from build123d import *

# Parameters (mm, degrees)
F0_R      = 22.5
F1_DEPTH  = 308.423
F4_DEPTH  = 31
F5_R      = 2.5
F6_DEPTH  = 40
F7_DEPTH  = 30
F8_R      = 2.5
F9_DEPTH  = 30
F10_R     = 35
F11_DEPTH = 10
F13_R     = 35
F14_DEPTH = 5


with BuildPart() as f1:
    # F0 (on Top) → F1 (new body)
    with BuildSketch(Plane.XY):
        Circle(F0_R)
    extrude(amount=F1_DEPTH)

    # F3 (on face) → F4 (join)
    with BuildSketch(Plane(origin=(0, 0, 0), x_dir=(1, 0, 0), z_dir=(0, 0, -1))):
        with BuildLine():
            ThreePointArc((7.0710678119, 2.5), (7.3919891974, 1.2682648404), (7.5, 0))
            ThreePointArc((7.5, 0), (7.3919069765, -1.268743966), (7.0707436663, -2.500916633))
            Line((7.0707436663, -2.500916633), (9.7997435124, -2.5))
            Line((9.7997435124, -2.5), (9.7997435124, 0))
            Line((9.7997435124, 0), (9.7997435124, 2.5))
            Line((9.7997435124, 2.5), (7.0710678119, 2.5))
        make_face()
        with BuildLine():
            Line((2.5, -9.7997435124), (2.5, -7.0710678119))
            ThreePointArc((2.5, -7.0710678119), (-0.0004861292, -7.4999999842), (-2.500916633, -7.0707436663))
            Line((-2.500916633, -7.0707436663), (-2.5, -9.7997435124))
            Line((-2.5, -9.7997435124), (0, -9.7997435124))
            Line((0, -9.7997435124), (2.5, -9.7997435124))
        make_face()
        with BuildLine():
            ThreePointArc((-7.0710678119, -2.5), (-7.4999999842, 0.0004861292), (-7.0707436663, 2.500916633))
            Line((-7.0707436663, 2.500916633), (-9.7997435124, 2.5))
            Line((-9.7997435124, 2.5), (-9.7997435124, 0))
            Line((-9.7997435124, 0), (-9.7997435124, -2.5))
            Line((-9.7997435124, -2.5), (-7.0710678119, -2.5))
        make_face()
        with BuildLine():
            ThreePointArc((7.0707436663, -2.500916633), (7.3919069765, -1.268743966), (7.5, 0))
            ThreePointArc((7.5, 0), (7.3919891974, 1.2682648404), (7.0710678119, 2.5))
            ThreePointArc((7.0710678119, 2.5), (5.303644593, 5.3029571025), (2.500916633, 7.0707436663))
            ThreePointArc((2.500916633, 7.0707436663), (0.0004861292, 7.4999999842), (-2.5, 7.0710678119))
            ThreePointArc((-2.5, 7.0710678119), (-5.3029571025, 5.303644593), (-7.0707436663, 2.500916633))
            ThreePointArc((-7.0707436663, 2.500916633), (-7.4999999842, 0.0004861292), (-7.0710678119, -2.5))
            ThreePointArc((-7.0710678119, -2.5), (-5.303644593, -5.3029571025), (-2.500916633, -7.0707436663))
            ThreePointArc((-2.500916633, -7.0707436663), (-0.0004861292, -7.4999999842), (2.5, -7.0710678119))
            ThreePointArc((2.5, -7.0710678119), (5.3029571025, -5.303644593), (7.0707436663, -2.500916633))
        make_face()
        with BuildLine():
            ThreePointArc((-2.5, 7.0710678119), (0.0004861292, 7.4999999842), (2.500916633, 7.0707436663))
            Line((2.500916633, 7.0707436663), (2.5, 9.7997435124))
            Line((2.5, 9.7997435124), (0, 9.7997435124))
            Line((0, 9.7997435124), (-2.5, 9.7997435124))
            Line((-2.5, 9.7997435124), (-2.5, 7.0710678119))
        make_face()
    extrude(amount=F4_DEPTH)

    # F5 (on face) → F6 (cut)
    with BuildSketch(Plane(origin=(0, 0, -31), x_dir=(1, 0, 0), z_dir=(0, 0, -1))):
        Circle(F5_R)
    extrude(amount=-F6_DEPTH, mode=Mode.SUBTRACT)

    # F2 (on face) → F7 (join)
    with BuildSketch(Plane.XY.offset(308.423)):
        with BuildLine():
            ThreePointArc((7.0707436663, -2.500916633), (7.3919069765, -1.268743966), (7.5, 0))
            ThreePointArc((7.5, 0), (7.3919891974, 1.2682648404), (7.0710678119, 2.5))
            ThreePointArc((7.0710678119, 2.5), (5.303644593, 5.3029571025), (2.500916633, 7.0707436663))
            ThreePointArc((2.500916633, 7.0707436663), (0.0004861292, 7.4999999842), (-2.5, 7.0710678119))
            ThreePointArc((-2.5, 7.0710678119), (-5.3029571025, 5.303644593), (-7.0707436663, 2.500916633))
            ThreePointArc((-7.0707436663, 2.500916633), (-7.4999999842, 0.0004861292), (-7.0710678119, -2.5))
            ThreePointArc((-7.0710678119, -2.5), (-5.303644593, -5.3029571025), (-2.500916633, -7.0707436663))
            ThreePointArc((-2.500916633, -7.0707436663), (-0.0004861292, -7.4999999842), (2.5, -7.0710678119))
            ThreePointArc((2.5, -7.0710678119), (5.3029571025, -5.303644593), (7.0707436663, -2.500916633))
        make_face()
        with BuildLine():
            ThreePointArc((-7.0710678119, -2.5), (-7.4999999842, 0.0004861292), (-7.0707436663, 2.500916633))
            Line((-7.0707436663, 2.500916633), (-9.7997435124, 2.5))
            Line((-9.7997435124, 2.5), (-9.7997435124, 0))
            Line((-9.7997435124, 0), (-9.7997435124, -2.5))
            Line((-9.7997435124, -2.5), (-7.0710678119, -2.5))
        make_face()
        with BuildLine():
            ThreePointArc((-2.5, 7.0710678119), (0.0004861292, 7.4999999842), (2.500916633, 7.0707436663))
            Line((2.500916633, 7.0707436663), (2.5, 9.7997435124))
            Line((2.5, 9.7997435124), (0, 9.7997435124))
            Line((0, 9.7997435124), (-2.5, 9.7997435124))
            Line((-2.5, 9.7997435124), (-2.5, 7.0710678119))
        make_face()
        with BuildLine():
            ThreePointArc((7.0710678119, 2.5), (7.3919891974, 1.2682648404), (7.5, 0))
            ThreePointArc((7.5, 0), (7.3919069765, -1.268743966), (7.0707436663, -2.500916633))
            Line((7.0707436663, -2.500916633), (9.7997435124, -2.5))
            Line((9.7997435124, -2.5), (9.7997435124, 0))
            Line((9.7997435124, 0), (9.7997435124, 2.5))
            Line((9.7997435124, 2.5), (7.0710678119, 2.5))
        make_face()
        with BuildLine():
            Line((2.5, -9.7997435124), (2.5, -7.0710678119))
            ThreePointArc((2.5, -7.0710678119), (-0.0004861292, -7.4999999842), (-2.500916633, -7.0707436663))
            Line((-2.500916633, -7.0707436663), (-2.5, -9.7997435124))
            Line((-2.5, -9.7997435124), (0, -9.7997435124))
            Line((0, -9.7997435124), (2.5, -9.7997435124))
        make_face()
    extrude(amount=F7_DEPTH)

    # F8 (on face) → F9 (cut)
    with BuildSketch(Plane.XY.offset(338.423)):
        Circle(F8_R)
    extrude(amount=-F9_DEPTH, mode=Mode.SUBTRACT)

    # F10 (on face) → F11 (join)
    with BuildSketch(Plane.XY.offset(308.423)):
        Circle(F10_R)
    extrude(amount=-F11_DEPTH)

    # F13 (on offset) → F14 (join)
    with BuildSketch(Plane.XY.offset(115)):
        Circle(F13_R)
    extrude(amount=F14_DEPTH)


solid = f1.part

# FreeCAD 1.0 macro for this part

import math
import FreeCAD as App
import Part
import Sketcher

doc = App.newDocument("Part")
body = doc.addObject("PartDesign::Body", "Body")

sketch1 = body.newObject("Sketcher::SketchObject", "Sketch")
sketch1.AttachmentSupport = (doc.getObject("XY_Plane"), [""])
sketch1.MapMode = "FlatFace"
sketch1.addGeometry(Part.Circle(App.Vector(0, 0, 0), App.Vector(0, 0, 1), 22), False)
sketch1.addConstraint([
    Sketcher.Constraint("Coincident", 0, 3, -1, 1),
    Sketcher.Constraint("Diameter", 0, 45.0),
])
pad1 = body.newObject("PartDesign::Pad", "Pad")
pad1.Profile = sketch1
pad1.Length = 308.423

sketch2 = body.newObject("Sketcher::SketchObject", "Sketch001")
sketch2.AttachmentSupport = (doc.getObject("XY_Plane"), [""])
sketch2.MapMode = "FlatFace"
sketch2.addGeometry([
    Part.LineSegment(App.Vector(7.1, 2.5, 0), App.Vector(9.8, 2.5, 0)),
    Part.LineSegment(App.Vector(9.8, 2.5, 0), App.Vector(9.8, -2.5, 0)),
    Part.LineSegment(App.Vector(9.8, -2.5, 0), App.Vector(7.1, -2.5, 0)),
    Part.ArcOfCircle(Part.Circle(App.Vector(0, 0, 0), App.Vector(0, 0, 1), 7.5), math.radians(-71), math.radians(-19)),
    Part.LineSegment(App.Vector(2.5, -7.1, 0), App.Vector(2.5, -9.8, 0)),
    Part.LineSegment(App.Vector(2.5, -9.8, 0), App.Vector(-2.5, -9.8, 0)),
    Part.LineSegment(App.Vector(-2.5, -9.8, 0), App.Vector(-2.5, -7.1, 0)),
    Part.ArcOfCircle(Part.Circle(App.Vector(0, 0, 0), App.Vector(0, 0, 1), 7.5), math.radians(-161), math.radians(-109)),
    Part.LineSegment(App.Vector(-7.1, -2.5, 0), App.Vector(-9.8, -2.5, 0)),
    Part.LineSegment(App.Vector(-9.8, -2.5, 0), App.Vector(-9.8, 2.5, 0)),
    Part.LineSegment(App.Vector(-9.8, 2.5, 0), App.Vector(-7.1, 2.5, 0)),
    Part.ArcOfCircle(Part.Circle(App.Vector(0, 0, 0), App.Vector(0, 0, 1), 7.5), math.radians(109), math.radians(161)),
    Part.LineSegment(App.Vector(-2.5, 7.1, 0), App.Vector(-2.5, 9.8, 0)),
    Part.LineSegment(App.Vector(-2.5, 9.8, 0), App.Vector(2.5, 9.8, 0)),
    Part.LineSegment(App.Vector(2.5, 9.8, 0), App.Vector(2.5, 7.1, 0)),
    Part.ArcOfCircle(Part.Circle(App.Vector(0, 0, 0), App.Vector(0, 0, 1), 7.5), math.radians(19), math.radians(71)),
], False)
sketch2.addConstraint([
    Sketcher.Constraint("Coincident", 0, 2, 1, 1),
    Sketcher.Constraint("Coincident", 1, 2, 2, 1),
    Sketcher.Constraint("Coincident", 2, 2, 3, 2),
    Sketcher.Constraint("Coincident", 3, 1, 4, 1),
    Sketcher.Constraint("Coincident", 4, 2, 5, 1),
    Sketcher.Constraint("Coincident", 5, 2, 6, 1),
    Sketcher.Constraint("Coincident", 6, 2, 7, 2),
    Sketcher.Constraint("Coincident", 7, 1, 8, 1),
    Sketcher.Constraint("Coincident", 8, 2, 9, 1),
    Sketcher.Constraint("Coincident", 9, 2, 10, 1),
    Sketcher.Constraint("Coincident", 10, 2, 11, 2),
    Sketcher.Constraint("Coincident", 11, 1, 12, 1),
    Sketcher.Constraint("Coincident", 12, 2, 13, 1),
    Sketcher.Constraint("Coincident", 13, 2, 14, 1),
    Sketcher.Constraint("Coincident", 14, 2, 15, 2),
    Sketcher.Constraint("Coincident", 15, 1, 0, 1),
    Sketcher.Constraint("Vertical", 1),
    Sketcher.Constraint("Horizontal", 2),
    Sketcher.Constraint("Horizontal", 5),
    Sketcher.Constraint("Vertical", 6),
    Sketcher.Constraint("Vertical", 9),
    Sketcher.Constraint("Horizontal", 10),
    Sketcher.Constraint("Horizontal", 13),
    Sketcher.Constraint("Vertical", 14),
    Sketcher.Constraint("Coincident", 3, 3, -1, 1),
    Sketcher.Constraint("Coincident", 7, 3, -1, 1),
    Sketcher.Constraint("Coincident", 11, 3, -1, 1),
    Sketcher.Constraint("Coincident", 15, 3, -1, 1),
    Sketcher.Constraint("Equal", 3, 7),
    Sketcher.Constraint("Equal", 7, 11),
    Sketcher.Constraint("Equal", 11, 15),
    Sketcher.Constraint("Symmetric", 0, 2, 8, 2, -1, 1),
    Sketcher.Constraint("Symmetric", 4, 2, 12, 2, -1, 1),
    Sketcher.Constraint("Perpendicular", 0, 4),
    Sketcher.Constraint("Perpendicular", 4, 8),
    Sketcher.Constraint("Perpendicular", 8, 12),
    Sketcher.Constraint("Horizontal", 2, 2, 8, 2),
    Sketcher.Constraint("Horizontal", 0, 2, 9, 2),
    Sketcher.Constraint("Vertical", 6, 2, 12, 2),
    Sketcher.Constraint("Vertical", 4, 2, 13, 2),
    Sketcher.Constraint("Equal", 13, 1),
    Sketcher.Constraint("Equal", 10, 6),
    Sketcher.Constraint("Radius", 3, 7.5),
    Sketcher.Constraint("DistanceX", 5, 2, 5, 1, 5.0),
    Sketcher.Constraint("Distance", 0, 2.729),
    Sketcher.Constraint("DistanceX", 2, 2, 2, 1, 2.728676),
])
pad2 = body.newObject("PartDesign::Pad", "Pad001")
pad2.Profile = sketch2
pad2.Length = 31
pad2.Reversed = True

sketch3 = body.newObject("Sketcher::SketchObject", "Sketch002")
sketch3.AttachmentSupport = (doc.getObject("XY_Plane"), [""])
sketch3.MapMode = "FlatFace"
sketch3.AttachmentOffset = App.Placement(App.Vector(0, 0, -31), App.Rotation())
sketch3.addGeometry(Part.Circle(App.Vector(0, 0, 0), App.Vector(0, 0, 1), 2.5), False)
sketch3.addConstraint([
    Sketcher.Constraint("Coincident", 0, 3, -1, 1),
    Sketcher.Constraint("Diameter", 0, 5.0),
])
pocket1 = body.newObject("PartDesign::Pocket", "Pocket")
pocket1.Profile = sketch3
pocket1.Length = 40
pocket1.Reversed = True

sketch4 = body.newObject("Sketcher::SketchObject", "Sketch003")
sketch4.AttachmentSupport = (doc.getObject("XY_Plane"), [""])
sketch4.MapMode = "FlatFace"
sketch4.AttachmentOffset = App.Placement(App.Vector(0, 0, 308.423), App.Rotation())
sketch4.addGeometry([
    Part.ArcOfCircle(Part.Circle(App.Vector(0, 0, 0), App.Vector(0, 0, 1), 7.5), math.radians(19), math.radians(71)),
    Part.LineSegment(App.Vector(2.5, 7.1, 0), App.Vector(2.5, 9.8, 0)),
    Part.LineSegment(App.Vector(2.5, 9.8, 0), App.Vector(-2.5, 9.8, 0)),
    Part.LineSegment(App.Vector(-2.5, 9.8, 0), App.Vector(-2.5, 7.1, 0)),
    Part.ArcOfCircle(Part.Circle(App.Vector(0, 0, 0), App.Vector(0, 0, 1), 7.5), math.radians(109), math.radians(161)),
    Part.LineSegment(App.Vector(-7.1, 2.5, 0), App.Vector(-9.8, 2.5, 0)),
    Part.LineSegment(App.Vector(-9.8, 2.5, 0), App.Vector(-9.8, -2.5, 0)),
    Part.LineSegment(App.Vector(-9.8, -2.5, 0), App.Vector(-7.1, -2.5, 0)),
    Part.ArcOfCircle(Part.Circle(App.Vector(0, 0, 0), App.Vector(0, 0, 1), 7.5), math.radians(-161), math.radians(-109)),
    Part.LineSegment(App.Vector(-2.5, -7.1, 0), App.Vector(-2.5, -9.8, 0)),
    Part.LineSegment(App.Vector(-2.5, -9.8, 0), App.Vector(2.5, -9.8, 0)),
    Part.LineSegment(App.Vector(2.5, -9.8, 0), App.Vector(2.5, -7.1, 0)),
    Part.ArcOfCircle(Part.Circle(App.Vector(0, 0, 0), App.Vector(0, 0, 1), 7.5), math.radians(-71), math.radians(-19)),
    Part.LineSegment(App.Vector(7.1, -2.5, 0), App.Vector(9.8, -2.5, 0)),
    Part.LineSegment(App.Vector(9.8, -2.5, 0), App.Vector(9.8, 2.5, 0)),
    Part.LineSegment(App.Vector(9.8, 2.5, 0), App.Vector(7.1, 2.5, 0)),
], False)
sketch4.addConstraint([
    Sketcher.Constraint("Coincident", 0, 2, 1, 1),
    Sketcher.Constraint("Coincident", 1, 2, 2, 1),
    Sketcher.Constraint("Coincident", 2, 2, 3, 1),
    Sketcher.Constraint("Coincident", 3, 2, 4, 1),
    Sketcher.Constraint("Coincident", 4, 2, 5, 1),
    Sketcher.Constraint("Coincident", 5, 2, 6, 1),
    Sketcher.Constraint("Coincident", 6, 2, 7, 1),
    Sketcher.Constraint("Coincident", 7, 2, 8, 1),
    Sketcher.Constraint("Coincident", 8, 2, 9, 1),
    Sketcher.Constraint("Coincident", 9, 2, 10, 1),
    Sketcher.Constraint("Coincident", 10, 2, 11, 1),
    Sketcher.Constraint("Coincident", 11, 2, 12, 1),
    Sketcher.Constraint("Coincident", 12, 2, 13, 1),
    Sketcher.Constraint("Coincident", 13, 2, 14, 1),
    Sketcher.Constraint("Coincident", 14, 2, 15, 1),
    Sketcher.Constraint("Coincident", 15, 2, 0, 1),
    Sketcher.Constraint("Horizontal", 2),
    Sketcher.Constraint("Vertical", 3),
    Sketcher.Constraint("Vertical", 6),
    Sketcher.Constraint("Horizontal", 7),
    Sketcher.Constraint("Horizontal", 10),
    Sketcher.Constraint("Vertical", 11),
    Sketcher.Constraint("Vertical", 14),
    Sketcher.Constraint("Horizontal", 15),
    Sketcher.Constraint("Coincident", 0, 3, -1, 1),
    Sketcher.Constraint("Coincident", 4, 3, -1, 1),
    Sketcher.Constraint("Coincident", 8, 3, -1, 1),
    Sketcher.Constraint("Coincident", 12, 3, -1, 1),
    Sketcher.Constraint("Equal", 0, 4),
    Sketcher.Constraint("Equal", 4, 8),
    Sketcher.Constraint("Equal", 8, 12),
    Sketcher.Constraint("Symmetric", 1, 2, 9, 2, -1, 1),
    Sketcher.Constraint("Symmetric", 5, 2, 13, 2, -1, 1),
    Sketcher.Constraint("Perpendicular", 1, 5),
    Sketcher.Constraint("Perpendicular", 5, 9),
    Sketcher.Constraint("Perpendicular", 9, 13),
    Sketcher.Constraint("Horizontal", 7, 2, 13, 2),
    Sketcher.Constraint("Horizontal", 5, 2, 14, 2),
    Sketcher.Constraint("Vertical", 3, 2, 9, 2),
    Sketcher.Constraint("Vertical", 1, 2, 10, 2),
    Sketcher.Constraint("Equal", 15, 3),
    Sketcher.Constraint("Equal", 10, 6),
    Sketcher.Constraint("Radius", 0, 7.5),
    Sketcher.Constraint("DistanceX", 2, 2, 2, 1, 5.0),
    Sketcher.Constraint("Distance", 1, 2.729),
    Sketcher.Constraint("DistanceX", 7, 1, 7, 2, 2.728676),
])
pad3 = body.newObject("PartDesign::Pad", "Pad002")
pad3.Profile = sketch4
pad3.Length = 30

sketch5 = body.newObject("Sketcher::SketchObject", "Sketch004")
sketch5.AttachmentSupport = (doc.getObject("XY_Plane"), [""])
sketch5.MapMode = "FlatFace"
sketch5.AttachmentOffset = App.Placement(App.Vector(0, 0, 338.423), App.Rotation())
sketch5.addGeometry(Part.Circle(App.Vector(0, 0, 0), App.Vector(0, 0, 1), 2.5), False)
sketch5.addConstraint([
    Sketcher.Constraint("Coincident", 0, 3, -1, 1),
    Sketcher.Constraint("Diameter", 0, 5.0),
])
pocket2 = body.newObject("PartDesign::Pocket", "Pocket001")
pocket2.Profile = sketch5
pocket2.Length = 30

sketch6 = body.newObject("Sketcher::SketchObject", "Sketch005")
sketch6.AttachmentSupport = (doc.getObject("XY_Plane"), [""])
sketch6.MapMode = "FlatFace"
sketch6.AttachmentOffset = App.Placement(App.Vector(0, 0, 308.423), App.Rotation())
sketch6.addGeometry(Part.Circle(App.Vector(0, 0, 0), App.Vector(0, 0, 1), 35), False)
sketch6.addConstraint([
    Sketcher.Constraint("Coincident", 0, 3, -1, 1),
    Sketcher.Constraint("Diameter", 0, 70.0),
])
pad4 = body.newObject("PartDesign::Pad", "Pad003")
pad4.Profile = sketch6
pad4.Length = 10
pad4.Reversed = True

sketch7 = body.newObject("Sketcher::SketchObject", "Sketch006")
sketch7.AttachmentSupport = (doc.getObject("XY_Plane"), [""])
sketch7.MapMode = "FlatFace"
sketch7.AttachmentOffset = App.Placement(App.Vector(0, 0, 115), App.Rotation())
sketch7.addGeometry(Part.Circle(App.Vector(0, 0, 0), App.Vector(0, 0, 1), 35), False)
sketch7.addConstraint([
    Sketcher.Constraint("Coincident", 0, 3, -1, 1),
    Sketcher.Constraint("Diameter", 0, 70.0),
])
pad5 = body.newObject("PartDesign::Pad", "Pad004")
pad5.Profile = sketch7
pad5.Length = 5

doc.recompute()
